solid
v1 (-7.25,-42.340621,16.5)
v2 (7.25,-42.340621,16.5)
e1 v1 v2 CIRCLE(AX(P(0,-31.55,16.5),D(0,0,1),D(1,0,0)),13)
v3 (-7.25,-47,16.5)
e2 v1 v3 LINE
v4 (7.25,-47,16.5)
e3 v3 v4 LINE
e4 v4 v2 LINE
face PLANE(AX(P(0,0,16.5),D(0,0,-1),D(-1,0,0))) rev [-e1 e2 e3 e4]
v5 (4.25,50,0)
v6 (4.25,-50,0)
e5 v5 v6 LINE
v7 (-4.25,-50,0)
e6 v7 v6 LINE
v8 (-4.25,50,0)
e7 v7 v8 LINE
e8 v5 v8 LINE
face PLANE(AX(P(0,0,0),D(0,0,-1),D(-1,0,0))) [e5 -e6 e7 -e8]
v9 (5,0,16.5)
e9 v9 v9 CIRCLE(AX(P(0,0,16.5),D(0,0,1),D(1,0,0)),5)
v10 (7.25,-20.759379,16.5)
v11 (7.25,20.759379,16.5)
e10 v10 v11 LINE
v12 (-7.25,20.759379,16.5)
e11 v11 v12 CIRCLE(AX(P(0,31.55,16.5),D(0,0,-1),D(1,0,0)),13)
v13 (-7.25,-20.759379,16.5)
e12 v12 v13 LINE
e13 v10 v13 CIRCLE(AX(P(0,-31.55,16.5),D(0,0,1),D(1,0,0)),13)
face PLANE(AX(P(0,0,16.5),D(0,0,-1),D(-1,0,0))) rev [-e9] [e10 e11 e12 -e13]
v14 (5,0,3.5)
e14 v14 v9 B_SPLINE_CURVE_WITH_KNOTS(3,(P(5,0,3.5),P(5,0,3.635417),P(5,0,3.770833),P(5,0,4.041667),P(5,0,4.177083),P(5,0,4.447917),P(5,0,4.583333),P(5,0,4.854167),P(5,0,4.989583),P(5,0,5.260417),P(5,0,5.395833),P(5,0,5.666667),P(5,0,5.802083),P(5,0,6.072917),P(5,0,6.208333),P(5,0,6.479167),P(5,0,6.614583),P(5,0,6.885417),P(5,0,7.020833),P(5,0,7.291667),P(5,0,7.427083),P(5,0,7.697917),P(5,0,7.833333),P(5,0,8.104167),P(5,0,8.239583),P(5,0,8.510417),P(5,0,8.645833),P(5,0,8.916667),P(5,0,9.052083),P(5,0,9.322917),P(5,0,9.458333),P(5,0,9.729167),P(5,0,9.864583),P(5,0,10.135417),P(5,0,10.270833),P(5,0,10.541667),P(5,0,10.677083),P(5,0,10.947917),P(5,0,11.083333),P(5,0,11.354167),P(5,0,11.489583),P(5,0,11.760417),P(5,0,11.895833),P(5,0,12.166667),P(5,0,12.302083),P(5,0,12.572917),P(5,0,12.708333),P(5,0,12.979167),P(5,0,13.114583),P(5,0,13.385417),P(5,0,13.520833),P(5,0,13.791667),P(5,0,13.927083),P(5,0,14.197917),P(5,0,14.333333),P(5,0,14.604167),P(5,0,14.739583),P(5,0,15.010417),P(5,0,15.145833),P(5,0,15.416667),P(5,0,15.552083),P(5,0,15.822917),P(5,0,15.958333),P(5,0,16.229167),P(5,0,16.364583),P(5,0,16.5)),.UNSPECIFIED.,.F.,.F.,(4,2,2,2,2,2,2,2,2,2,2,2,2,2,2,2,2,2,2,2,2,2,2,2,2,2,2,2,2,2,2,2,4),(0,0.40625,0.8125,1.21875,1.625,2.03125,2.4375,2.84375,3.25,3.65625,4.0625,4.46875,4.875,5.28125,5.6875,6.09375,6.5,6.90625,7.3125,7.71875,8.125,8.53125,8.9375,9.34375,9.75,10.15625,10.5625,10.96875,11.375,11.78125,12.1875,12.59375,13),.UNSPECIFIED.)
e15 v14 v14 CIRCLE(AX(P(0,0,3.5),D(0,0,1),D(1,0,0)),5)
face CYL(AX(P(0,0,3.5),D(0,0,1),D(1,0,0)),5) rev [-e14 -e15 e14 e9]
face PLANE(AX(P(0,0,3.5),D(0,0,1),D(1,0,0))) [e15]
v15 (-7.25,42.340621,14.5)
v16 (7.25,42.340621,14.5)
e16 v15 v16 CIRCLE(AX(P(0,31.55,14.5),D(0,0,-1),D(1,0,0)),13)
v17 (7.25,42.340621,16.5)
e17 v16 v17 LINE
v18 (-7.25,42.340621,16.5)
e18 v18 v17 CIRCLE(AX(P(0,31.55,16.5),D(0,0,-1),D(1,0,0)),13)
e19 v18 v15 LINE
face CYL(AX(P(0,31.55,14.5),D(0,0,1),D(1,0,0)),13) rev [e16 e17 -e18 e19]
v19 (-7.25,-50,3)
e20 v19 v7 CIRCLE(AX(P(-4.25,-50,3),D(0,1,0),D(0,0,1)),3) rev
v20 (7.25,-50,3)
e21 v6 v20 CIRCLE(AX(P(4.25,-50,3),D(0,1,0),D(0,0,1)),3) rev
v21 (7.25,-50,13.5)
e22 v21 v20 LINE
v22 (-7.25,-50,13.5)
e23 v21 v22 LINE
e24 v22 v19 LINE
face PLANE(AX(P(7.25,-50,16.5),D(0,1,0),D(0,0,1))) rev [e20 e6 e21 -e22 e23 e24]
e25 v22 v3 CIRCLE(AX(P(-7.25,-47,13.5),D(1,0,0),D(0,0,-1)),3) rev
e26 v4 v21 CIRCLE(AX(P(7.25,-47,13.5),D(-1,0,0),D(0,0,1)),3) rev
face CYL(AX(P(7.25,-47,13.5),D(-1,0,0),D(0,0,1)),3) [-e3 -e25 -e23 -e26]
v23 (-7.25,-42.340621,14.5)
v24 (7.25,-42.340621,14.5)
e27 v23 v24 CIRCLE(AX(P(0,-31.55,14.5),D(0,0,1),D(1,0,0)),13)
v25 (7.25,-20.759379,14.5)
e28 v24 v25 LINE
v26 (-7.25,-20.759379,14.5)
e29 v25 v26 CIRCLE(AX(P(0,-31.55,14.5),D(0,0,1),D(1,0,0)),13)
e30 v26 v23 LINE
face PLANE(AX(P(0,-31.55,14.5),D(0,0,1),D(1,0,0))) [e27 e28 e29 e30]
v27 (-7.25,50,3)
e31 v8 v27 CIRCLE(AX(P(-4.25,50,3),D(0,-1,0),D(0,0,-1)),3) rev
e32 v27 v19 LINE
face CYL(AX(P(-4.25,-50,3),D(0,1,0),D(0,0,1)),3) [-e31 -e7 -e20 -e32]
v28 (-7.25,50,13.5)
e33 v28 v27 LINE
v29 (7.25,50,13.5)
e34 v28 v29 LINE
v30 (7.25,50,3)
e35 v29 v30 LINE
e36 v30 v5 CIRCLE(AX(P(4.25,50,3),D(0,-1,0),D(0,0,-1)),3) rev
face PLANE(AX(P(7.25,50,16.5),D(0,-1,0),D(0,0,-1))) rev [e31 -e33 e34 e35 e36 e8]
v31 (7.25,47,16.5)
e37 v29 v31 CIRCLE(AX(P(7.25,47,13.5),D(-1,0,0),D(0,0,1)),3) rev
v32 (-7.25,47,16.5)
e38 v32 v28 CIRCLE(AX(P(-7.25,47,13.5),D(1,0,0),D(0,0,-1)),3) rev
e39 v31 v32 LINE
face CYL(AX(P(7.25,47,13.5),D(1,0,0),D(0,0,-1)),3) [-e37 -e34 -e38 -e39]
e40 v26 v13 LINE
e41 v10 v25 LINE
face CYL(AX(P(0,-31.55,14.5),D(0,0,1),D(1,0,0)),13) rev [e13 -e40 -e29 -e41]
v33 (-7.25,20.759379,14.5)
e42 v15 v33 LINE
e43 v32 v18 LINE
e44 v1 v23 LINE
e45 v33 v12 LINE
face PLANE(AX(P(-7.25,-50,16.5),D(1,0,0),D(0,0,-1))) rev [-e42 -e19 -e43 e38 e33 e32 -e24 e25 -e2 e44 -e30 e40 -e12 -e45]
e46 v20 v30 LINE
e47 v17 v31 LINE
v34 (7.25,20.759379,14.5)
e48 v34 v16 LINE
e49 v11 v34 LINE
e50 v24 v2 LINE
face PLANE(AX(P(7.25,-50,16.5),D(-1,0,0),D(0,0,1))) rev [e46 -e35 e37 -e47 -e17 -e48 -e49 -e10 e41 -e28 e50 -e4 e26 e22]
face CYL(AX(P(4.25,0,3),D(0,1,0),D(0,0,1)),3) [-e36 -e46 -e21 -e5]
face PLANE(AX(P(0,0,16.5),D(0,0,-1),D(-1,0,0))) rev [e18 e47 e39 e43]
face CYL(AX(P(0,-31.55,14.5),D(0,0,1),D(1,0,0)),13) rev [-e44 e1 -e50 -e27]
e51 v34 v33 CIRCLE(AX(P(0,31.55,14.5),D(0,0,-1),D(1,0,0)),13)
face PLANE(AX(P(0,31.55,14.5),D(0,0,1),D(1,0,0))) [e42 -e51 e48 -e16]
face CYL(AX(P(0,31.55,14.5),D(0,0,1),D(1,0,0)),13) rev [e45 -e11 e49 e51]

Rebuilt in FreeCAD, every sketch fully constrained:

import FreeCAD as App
import Part
import Sketcher
from FreeCAD import Vector


def edges_at(feature, points):
    """Names of the edges that pass closest to the given points."""
    edges = feature.Shape.Edges
    near = lambda p: min(range(len(edges)), key=lambda i: edges[i].distToShape(Part.Vertex(*p))[0])
    return sorted({f"Edge{near(p) + 1}" for p in points})

doc = App.newDocument("Part")
body = doc.addObject("PartDesign::Body", "Body")

# Sketch on XY plane
sketch1 = body.newObject("Sketcher::SketchObject", "Sketch")
sketch1.AttachmentSupport = (doc.getObject("XY_Plane"), [""])
sketch1.MapMode = "FlatFace"
sketch1.addGeometry(Part.LineSegment(Vector(-7.25, -50, 0), Vector(7.25, -50, 0)), False)
sketch1.addGeometry(Part.LineSegment(Vector(7.25, -50, 0), Vector(7.25, 50, 0)), False)
sketch1.addGeometry(Part.LineSegment(Vector(7.25, 50, 0), Vector(-7.25, 50, 0)), False)
sketch1.addGeometry(Part.LineSegment(Vector(-7.25, 50, 0), Vector(-7.25, -50, 0)), False)
sketch1.addConstraint(Sketcher.Constraint("Coincident", 0, 2, 1, 1))
sketch1.addConstraint(Sketcher.Constraint("Coincident", 1, 2, 2, 1))
sketch1.addConstraint(Sketcher.Constraint("Coincident", 2, 2, 3, 1))
sketch1.addConstraint(Sketcher.Constraint("Coincident", 3, 2, 0, 1))
sketch1.addConstraint(Sketcher.Constraint("Horizontal", 0))
sketch1.addConstraint(Sketcher.Constraint("Vertical", 1))
sketch1.addConstraint(Sketcher.Constraint("Horizontal", 2))
sketch1.addConstraint(Sketcher.Constraint("Vertical", 3))
sketch1.addConstraint(Sketcher.Constraint("Symmetric", 0, 2, 2, 2, -1, 1))
sketch1.addConstraint(Sketcher.Constraint("DistanceY", 1, 1, 1, 2, 100.0))
sketch1.addConstraint(Sketcher.Constraint("DistanceX", 0, 1, 0, 2, 14.5))
pad1 = body.newObject("PartDesign::Pad", "Pad")
pad1.Profile = sketch1
pad1.Length = 16.5

# Sketch on XY plane
sketch2 = body.newObject("Sketcher::SketchObject", "Sketch001")
sketch2.AttachmentSupport = (doc.getObject("XY_Plane"), [""])
sketch2.MapMode = "FlatFace"
sketch2.AttachmentOffset = App.Placement(Vector(0, 0, 16.5), App.Rotation())
sketch2.addGeometry(Part.Circle(Vector(0, 0, 0), Vector(0, 0, 1), 5), False)
sketch2.addConstraint(Sketcher.Constraint("Coincident", 0, 3, -1, 1))
sketch2.addConstraint(Sketcher.Constraint("Diameter", 0, 10.0))
pocket1 = body.newObject("PartDesign::Pocket", "Pocket")
pocket1.Profile = sketch2
pocket1.Length = 13

# Sketch on XY plane
sketch3 = body.newObject("Sketcher::SketchObject", "Sketch002")
sketch3.AttachmentSupport = (doc.getObject("XY_Plane"), [""])
sketch3.MapMode = "FlatFace"
sketch3.AttachmentOffset = App.Placement(Vector(0, 0, 16.5), App.Rotation())
sketch3.addGeometry(Part.Circle(Vector(0, -31.55, 0), Vector(0, 0, 1), 13), False)
sketch3.addConstraint(Sketcher.Constraint("PointOnObject", 0, 3, -2))
sketch3.addConstraint(Sketcher.Constraint("Diameter", 0, 26.0))
sketch3.addConstraint(Sketcher.Constraint("DistanceY", 0, 3, -1, 1, 31.55))
pocket2 = body.newObject("PartDesign::Pocket", "Pocket001")
pocket2.Profile = sketch3
pocket2.Length = 2
doc.recompute()

mirrored = body.newObject("PartDesign::Mirrored", "Mirrored")
mirrored.Originals = [pocket2]
mirrored.MirrorPlane = (doc.getObject("XZ_Plane"), [""])
body.Tip = mirrored
doc.recompute()

fillet = body.newObject("PartDesign::Fillet", "Fillet")
fillet.Base = (mirrored, edges_at(mirrored, [(-7.25, 0, 0)]))
fillet.Radius = 3
doc.recompute()

fillet2 = body.newObject("PartDesign::Fillet", "Fillet001")
fillet2.Base = (fillet, edges_at(fillet, [(7.25, 0, 0)]))
fillet2.Radius = 3
doc.recompute()

fillet3 = body.newObject("PartDesign::Fillet", "Fillet002")
fillet3.Base = (fillet2, edges_at(fillet2, [(0, 50, 16.5)]))
fillet3.Radius = 3
doc.recompute()

fillet4 = body.newObject("PartDesign::Fillet", "Fillet003")
fillet4.Base = (fillet3, edges_at(fillet3, [(0, -50, 16.5)]))
fillet4.Radius = 3

doc.recompute()
